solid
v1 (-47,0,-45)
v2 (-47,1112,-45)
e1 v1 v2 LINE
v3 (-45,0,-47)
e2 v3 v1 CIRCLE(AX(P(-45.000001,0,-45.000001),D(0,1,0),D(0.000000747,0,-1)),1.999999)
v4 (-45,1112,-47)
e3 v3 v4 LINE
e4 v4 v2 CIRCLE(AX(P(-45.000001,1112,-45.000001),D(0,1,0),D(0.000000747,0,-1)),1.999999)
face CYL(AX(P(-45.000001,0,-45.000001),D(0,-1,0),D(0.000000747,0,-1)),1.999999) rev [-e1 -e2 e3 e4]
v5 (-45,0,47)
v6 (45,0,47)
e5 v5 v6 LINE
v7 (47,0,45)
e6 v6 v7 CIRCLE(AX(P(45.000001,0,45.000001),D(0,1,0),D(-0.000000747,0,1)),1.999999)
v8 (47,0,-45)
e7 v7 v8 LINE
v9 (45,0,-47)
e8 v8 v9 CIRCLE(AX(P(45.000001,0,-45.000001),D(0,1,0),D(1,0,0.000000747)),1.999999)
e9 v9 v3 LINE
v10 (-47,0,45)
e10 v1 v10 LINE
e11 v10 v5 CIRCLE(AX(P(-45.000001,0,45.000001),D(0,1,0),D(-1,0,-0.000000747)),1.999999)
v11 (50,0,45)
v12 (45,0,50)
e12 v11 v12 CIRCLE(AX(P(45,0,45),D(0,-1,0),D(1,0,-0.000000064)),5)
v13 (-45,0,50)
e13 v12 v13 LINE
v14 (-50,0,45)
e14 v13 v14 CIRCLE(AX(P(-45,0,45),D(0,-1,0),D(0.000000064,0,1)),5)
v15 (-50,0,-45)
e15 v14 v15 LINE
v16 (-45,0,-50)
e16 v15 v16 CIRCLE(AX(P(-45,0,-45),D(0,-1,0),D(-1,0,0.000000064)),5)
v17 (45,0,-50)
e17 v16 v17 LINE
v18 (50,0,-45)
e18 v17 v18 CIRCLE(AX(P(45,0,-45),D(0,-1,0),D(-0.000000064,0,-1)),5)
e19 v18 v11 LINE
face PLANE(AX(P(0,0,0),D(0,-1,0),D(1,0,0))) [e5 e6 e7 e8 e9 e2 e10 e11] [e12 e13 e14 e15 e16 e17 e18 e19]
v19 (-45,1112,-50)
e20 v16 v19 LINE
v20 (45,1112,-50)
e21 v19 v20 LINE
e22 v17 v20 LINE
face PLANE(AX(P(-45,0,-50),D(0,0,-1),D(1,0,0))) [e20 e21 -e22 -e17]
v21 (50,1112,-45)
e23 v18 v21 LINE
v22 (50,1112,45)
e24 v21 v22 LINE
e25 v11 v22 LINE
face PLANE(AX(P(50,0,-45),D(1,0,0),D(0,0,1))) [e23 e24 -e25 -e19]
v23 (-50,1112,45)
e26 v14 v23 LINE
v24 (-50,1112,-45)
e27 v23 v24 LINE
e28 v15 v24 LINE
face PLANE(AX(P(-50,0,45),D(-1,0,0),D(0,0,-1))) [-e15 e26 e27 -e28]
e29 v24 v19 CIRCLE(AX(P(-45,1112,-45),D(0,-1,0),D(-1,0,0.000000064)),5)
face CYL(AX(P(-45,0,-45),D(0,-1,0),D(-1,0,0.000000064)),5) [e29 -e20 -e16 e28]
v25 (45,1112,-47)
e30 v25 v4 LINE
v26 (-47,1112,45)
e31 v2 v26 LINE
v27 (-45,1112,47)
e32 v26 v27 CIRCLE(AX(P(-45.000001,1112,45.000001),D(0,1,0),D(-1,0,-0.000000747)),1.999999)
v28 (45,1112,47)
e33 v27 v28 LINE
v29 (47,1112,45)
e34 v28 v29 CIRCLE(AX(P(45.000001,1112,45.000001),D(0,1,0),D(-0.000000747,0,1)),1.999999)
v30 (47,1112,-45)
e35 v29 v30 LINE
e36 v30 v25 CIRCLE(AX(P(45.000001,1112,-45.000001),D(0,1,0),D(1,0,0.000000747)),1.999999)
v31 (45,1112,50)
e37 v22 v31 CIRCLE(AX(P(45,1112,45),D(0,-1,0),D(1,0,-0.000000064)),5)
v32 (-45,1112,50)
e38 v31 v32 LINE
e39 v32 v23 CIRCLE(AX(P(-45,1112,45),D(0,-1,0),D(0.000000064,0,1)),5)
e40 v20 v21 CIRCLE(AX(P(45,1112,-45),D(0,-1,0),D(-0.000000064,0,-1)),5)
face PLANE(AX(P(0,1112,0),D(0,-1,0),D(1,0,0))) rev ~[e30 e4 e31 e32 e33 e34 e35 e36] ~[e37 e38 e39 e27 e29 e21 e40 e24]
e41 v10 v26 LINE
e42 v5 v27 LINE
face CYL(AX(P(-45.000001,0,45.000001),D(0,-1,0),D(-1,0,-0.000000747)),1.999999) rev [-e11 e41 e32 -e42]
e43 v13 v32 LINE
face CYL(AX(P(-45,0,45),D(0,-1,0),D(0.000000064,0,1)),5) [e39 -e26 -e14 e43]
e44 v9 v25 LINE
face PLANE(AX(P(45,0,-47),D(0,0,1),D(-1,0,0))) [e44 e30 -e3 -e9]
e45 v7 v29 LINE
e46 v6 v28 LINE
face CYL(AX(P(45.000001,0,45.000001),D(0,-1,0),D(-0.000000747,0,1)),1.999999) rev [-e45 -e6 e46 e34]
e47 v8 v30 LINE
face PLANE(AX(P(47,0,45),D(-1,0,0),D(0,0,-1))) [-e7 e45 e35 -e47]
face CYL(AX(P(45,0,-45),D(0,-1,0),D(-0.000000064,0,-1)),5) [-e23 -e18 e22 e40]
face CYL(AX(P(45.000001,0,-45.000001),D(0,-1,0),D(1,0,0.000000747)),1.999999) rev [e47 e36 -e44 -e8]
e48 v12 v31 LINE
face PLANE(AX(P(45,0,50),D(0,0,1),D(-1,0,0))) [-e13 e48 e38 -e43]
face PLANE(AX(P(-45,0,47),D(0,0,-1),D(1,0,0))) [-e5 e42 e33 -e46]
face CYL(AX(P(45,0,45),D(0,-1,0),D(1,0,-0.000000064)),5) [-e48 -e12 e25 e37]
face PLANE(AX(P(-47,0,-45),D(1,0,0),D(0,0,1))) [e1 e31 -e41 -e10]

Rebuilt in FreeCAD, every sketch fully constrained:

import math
import FreeCAD as App
import Part
import Sketcher

V = App.Vector
Q = App.Units.Quantity

doc = App.newDocument("Part")
body = doc.addObject("PartDesign::Body", "Body")

# Sketch on XZ plane
sketch1 = doc.addObject("Sketcher::SketchObject", "Sketch")
body.addObject(sketch1)
sketch1.AttachmentSupport = (doc.XZ_Plane, [""])
sketch1.MapMode = "FlatFace"
sketch1.addGeometry(Part.ArcOfCircle(Part.Circle(V(45, 45, 0), V(0, 0, 1), 5), math.radians(0), math.radians(90)), False)
sketch1.addGeometry(Part.LineSegment(V(45, 50, 0), V(-45, 50, 0)), False)
sketch1.addGeometry(Part.ArcOfCircle(Part.Circle(V(-45, 45, 0), V(0, 0, 1), 5), math.radians(90), math.radians(180)), False)
sketch1.addGeometry(Part.LineSegment(V(-50, 45, 0), V(-50, -45, 0)), False)
sketch1.addGeometry(Part.ArcOfCircle(Part.Circle(V(-45, -45, 0), V(0, 0, 1), 5), math.radians(180), math.radians(270)), False)
sketch1.addGeometry(Part.LineSegment(V(-45, -50, 0), V(45, -50, 0)), False)
sketch1.addGeometry(Part.ArcOfCircle(Part.Circle(V(45, -45, 0), V(0, 0, 1), 5), math.radians(-90), math.radians(0)), False)
sketch1.addGeometry(Part.LineSegment(V(50, -45, 0), V(50, 45, 0)), False)
sketch1.addGeometry(Part.LineSegment(V(-47, -45, 0), V(-47, 45, 0)), False)
sketch1.addGeometry(Part.ArcOfCircle(Part.Circle(V(-45, 45, 0), V(0, 0, 1), 2), math.radians(90), math.radians(180)), False)
sketch1.addGeometry(Part.LineSegment(V(-45, 47, 0), V(45, 47, 0)), False)
sketch1.addGeometry(Part.ArcOfCircle(Part.Circle(V(45, 45, 0), V(0, 0, 1), 2), math.radians(0), math.radians(90)), False)
sketch1.addGeometry(Part.LineSegment(V(47, 45, 0), V(47, -45, 0)), False)
sketch1.addGeometry(Part.ArcOfCircle(Part.Circle(V(45, -45, 0), V(0, 0, 1), 2), math.radians(-90), math.radians(0)), False)
sketch1.addGeometry(Part.LineSegment(V(45, -47, 0), V(-45, -47, 0)), False)
sketch1.addGeometry(Part.ArcOfCircle(Part.Circle(V(-45, -45, 0), V(0, 0, 1), 2), math.radians(180), math.radians(270)), False)
sketch1.addConstraint(Sketcher.Constraint("Tangent", 0, 2, 1, 1))
sketch1.addConstraint(Sketcher.Constraint("Tangent", 1, 2, 2, 1))
sketch1.addConstraint(Sketcher.Constraint("Tangent", 2, 2, 3, 1))
sketch1.addConstraint(Sketcher.Constraint("Tangent", 3, 2, 4, 1))
sketch1.addConstraint(Sketcher.Constraint("Tangent", 4, 2, 5, 1))
sketch1.addConstraint(Sketcher.Constraint("Tangent", 5, 2, 6, 1))
sketch1.addConstraint(Sketcher.Constraint("Tangent", 6, 2, 7, 1))
sketch1.addConstraint(Sketcher.Constraint("Tangent", 7, 2, 0, 1))
sketch1.addConstraint(Sketcher.Constraint("Tangent", 8, 2, 9, 2))
sketch1.addConstraint(Sketcher.Constraint("Tangent", 9, 1, 10, 1))
sketch1.addConstraint(Sketcher.Constraint("Tangent", 10, 2, 11, 2))
sketch1.addConstraint(Sketcher.Constraint("Tangent", 11, 1, 12, 1))
sketch1.addConstraint(Sketcher.Constraint("Tangent", 12, 2, 13, 2))
sketch1.addConstraint(Sketcher.Constraint("Tangent", 13, 1, 14, 1))
sketch1.addConstraint(Sketcher.Constraint("Tangent", 14, 2, 15, 2))
sketch1.addConstraint(Sketcher.Constraint("Tangent", 15, 1, 8, 1))
sketch1.addConstraint(Sketcher.Constraint("Horizontal", 1))
sketch1.addConstraint(Sketcher.Constraint("Vertical", 3))
sketch1.addConstraint(Sketcher.Constraint("Horizontal", 5))
sketch1.addConstraint(Sketcher.Constraint("Vertical", 7))
sketch1.addConstraint(Sketcher.Constraint("Vertical", 8))
sketch1.addConstraint(Sketcher.Constraint("Horizontal", 10))
sketch1.addConstraint(Sketcher.Constraint("Vertical", 12))
sketch1.addConstraint(Sketcher.Constraint("Horizontal", 14))
sketch1.addConstraint(Sketcher.Constraint("Coincident", 9, 3, 2, 3))
sketch1.addConstraint(Sketcher.Constraint("Coincident", 11, 3, 0, 3))
sketch1.addConstraint(Sketcher.Constraint("Coincident", 13, 3, 6, 3))
sketch1.addConstraint(Sketcher.Constraint("Equal", 0, 2))
sketch1.addConstraint(Sketcher.Constraint("Equal", 2, 4))
sketch1.addConstraint(Sketcher.Constraint("Equal", 4, 6))
sketch1.addConstraint(Sketcher.Constraint("Equal", 13, 15))
sketch1.addConstraint(Sketcher.Constraint("Symmetric", 0, 3, 4, 3, -1, 1))
sketch1.addConstraint(Sketcher.Constraint("Equal", 14, 3))
sketch1.addConstraint(Sketcher.Constraint("Radius", 0, Q("5 mm")))
sketch1.addConstraint(Sketcher.Constraint("Radius", 9, Q("1.999999 mm")))
sketch1.addConstraint(Sketcher.Constraint("DistanceX", 1, 2, 1, 1, Q("90 mm")))
pad1 = doc.addObject("PartDesign::Pad", "Pad")
body.addObject(pad1)
pad1.Profile = sketch1
pad1.Length = 1112
pad1.Reversed = True

doc.recompute()
